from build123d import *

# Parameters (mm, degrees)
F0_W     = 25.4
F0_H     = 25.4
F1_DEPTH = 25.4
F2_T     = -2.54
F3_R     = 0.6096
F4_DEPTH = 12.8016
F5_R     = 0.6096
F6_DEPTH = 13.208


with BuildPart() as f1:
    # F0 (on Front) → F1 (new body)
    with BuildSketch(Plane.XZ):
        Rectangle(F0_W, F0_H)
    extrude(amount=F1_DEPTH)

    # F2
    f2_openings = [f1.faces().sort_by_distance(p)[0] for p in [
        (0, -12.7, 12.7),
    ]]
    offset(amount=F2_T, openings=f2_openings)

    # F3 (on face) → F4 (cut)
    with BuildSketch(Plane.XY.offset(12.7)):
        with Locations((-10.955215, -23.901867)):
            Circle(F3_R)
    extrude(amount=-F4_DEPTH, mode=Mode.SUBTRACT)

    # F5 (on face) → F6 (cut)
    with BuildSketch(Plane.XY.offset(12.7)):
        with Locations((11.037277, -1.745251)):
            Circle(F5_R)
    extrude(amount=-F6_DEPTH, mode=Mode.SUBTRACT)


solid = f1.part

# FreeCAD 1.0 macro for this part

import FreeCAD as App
import Part
import Sketcher

V = App.Vector
Q = App.Units.Quantity


def faces_at(feature, points):
    """Names of the faces that lie closest to the given points."""
    faces = feature.Shape.Faces
    near = lambda p: min(range(len(faces)), key=lambda i: faces[i].distToShape(Part.Vertex(*p))[0])
    return sorted({f"Face{near(p) + 1}" for p in points})


def add_polygon(sketch, points):
    """Adds a closed chain of lines whose ends are joined by coincident constraints."""
    first, n = sketch.GeometryCount, len(points)
    for a, b in zip(points, points[1:] + points[:1]):
        sketch.addGeometry(Part.LineSegment(App.Vector(*a, 0), App.Vector(*b, 0)), False)
    for i in range(n):
        sketch.addConstraint(Sketcher.Constraint("Coincident", first + i, 2, first + (i + 1) % n, 1))

doc = App.newDocument("Part")
body = doc.addObject("PartDesign::Body", "Body")

# Sketch on XZ plane
sketch1 = body.newObject("Sketcher::SketchObject", "Sketch")
sketch1.AttachmentSupport = (doc.getObject("XZ_Plane"), [""])
sketch1.MapMode = "FlatFace"
add_polygon(sketch1, [(-13, 13), (-13, -13), (13, -13), (13, 13)])  # lines 0-3
sketch1.addConstraint(Sketcher.Constraint("Vertical", 0))
sketch1.addConstraint(Sketcher.Constraint("Horizontal", 1))
sketch1.addConstraint(Sketcher.Constraint("Vertical", 2))
sketch1.addConstraint(Sketcher.Constraint("Horizontal", 3))
sketch1.addConstraint(Sketcher.Constraint("Symmetric", 0, 2, 2, 2, -1, 1))
sketch1.addConstraint(Sketcher.Constraint("Equal", 3, 0))
sketch1.addConstraint(Sketcher.Constraint("DistanceX", 1, 1, 1, 2, Q("1 in")))
pad1 = body.newObject("PartDesign::Pad", "Pad")
pad1.Profile = sketch1
pad1.Length = Q("1 in")
doc.recompute()

thickness = body.newObject("PartDesign::Thickness", "Thickness")
thickness.Base = (pad1, faces_at(pad1, [(0, -12.7, 12.7)]))
thickness.Value = Q("0.1 in")
thickness.Reversed = True
thickness.Join = "Arc"

# Sketch on XY plane
sketch2 = body.newObject("Sketcher::SketchObject", "Sketch001")
sketch2.AttachmentSupport = (doc.getObject("XY_Plane"), [""])
sketch2.MapMode = "FlatFace"
sketch2.AttachmentOffset = App.Placement(V(0, 0, 0.5 * 25.4), App.Rotation())
sketch2.addGeometry(Part.Circle(V(-11, -23.9, 0), V(0, 0, 1), 0.6), False)
sketch2.addConstraint(Sketcher.Constraint("Diameter", 0, Q("0.048 in")))
sketch2.addConstraint(Sketcher.Constraint("DistanceX", 0, 3, -1, 1, Q("10.955215 mm")))
sketch2.addConstraint(Sketcher.Constraint("DistanceY", 0, 3, -1, 1, Q("23.901867 mm")))
pocket1 = body.newObject("PartDesign::Pocket", "Pocket")
pocket1.Profile = sketch2
pocket1.Length = Q("0.504 in")

# Sketch on XY plane
sketch3 = body.newObject("Sketcher::SketchObject", "Sketch002")
sketch3.AttachmentSupport = (doc.getObject("XY_Plane"), [""])
sketch3.MapMode = "FlatFace"
sketch3.AttachmentOffset = App.Placement(V(0, 0, 0.5 * 25.4), App.Rotation())
sketch3.addGeometry(Part.Circle(V(11, -1.7, 0), V(0, 0, 1), 0.6), False)
sketch3.addConstraint(Sketcher.Constraint("Diameter", 0, Q("0.048 in")))
sketch3.addConstraint(Sketcher.Constraint("DistanceY", 0, 3, -1, 1, Q("1.745251 mm")))
sketch3.addConstraint(Sketcher.Constraint("DistanceX", -1, 1, 0, 3, Q("11.037277 mm")))
pocket2 = body.newObject("PartDesign::Pocket", "Pocket001")
pocket2.Profile = sketch3
pocket2.Length = Q("0.52 in")

doc.recompute()
